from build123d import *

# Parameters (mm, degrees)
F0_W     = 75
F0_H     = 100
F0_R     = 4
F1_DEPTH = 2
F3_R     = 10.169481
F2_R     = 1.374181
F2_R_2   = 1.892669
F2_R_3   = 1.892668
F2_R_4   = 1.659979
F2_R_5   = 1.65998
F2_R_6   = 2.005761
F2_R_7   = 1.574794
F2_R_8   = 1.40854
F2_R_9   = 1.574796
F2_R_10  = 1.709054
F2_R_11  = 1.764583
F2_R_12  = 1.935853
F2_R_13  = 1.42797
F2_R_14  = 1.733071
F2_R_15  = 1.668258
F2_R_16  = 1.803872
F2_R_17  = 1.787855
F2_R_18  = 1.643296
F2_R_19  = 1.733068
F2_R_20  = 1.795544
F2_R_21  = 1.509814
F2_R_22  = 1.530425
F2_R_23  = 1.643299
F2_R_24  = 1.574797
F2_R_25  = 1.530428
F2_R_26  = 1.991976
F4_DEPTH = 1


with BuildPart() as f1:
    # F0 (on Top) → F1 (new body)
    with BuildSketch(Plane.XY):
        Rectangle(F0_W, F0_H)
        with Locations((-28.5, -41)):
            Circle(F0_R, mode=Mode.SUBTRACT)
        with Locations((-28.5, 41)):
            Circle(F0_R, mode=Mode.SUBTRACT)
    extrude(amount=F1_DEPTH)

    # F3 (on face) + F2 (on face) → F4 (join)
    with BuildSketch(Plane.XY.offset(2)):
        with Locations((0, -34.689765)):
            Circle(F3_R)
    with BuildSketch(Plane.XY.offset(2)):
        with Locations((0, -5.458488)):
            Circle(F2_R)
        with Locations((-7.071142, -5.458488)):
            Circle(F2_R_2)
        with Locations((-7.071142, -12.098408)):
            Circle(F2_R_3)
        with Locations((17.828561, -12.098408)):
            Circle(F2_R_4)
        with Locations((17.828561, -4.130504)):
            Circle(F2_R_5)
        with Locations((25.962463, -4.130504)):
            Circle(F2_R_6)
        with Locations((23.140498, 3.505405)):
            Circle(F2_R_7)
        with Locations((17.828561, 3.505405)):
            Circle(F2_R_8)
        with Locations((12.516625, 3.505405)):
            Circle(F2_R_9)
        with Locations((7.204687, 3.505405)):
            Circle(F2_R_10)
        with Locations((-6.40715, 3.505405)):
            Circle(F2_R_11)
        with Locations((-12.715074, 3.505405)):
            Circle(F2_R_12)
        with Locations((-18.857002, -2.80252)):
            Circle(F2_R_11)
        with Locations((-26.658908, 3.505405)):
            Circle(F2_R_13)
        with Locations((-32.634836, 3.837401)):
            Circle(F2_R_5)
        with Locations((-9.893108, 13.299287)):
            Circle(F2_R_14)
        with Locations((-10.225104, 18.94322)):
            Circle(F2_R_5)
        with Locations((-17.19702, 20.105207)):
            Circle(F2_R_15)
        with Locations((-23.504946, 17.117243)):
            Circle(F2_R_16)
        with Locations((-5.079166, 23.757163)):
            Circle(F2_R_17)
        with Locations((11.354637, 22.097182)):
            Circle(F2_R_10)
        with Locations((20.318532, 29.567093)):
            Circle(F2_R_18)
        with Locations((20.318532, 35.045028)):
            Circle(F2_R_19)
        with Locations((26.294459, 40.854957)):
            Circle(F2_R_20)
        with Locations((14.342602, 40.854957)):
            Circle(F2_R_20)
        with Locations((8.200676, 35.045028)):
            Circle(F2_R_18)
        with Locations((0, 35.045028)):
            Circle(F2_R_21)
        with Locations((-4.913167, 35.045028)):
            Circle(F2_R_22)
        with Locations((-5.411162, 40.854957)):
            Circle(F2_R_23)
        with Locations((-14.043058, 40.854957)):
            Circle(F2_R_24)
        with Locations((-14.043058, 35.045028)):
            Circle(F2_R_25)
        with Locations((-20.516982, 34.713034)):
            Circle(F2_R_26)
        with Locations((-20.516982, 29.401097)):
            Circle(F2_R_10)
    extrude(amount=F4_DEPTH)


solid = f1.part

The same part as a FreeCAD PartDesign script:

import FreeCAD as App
import Part
import Sketcher

V = App.Vector
Q = App.Units.Quantity


def add_polygon(sketch, points):
    """Adds a closed chain of lines whose ends are joined by coincident constraints."""
    first, n = sketch.GeometryCount, len(points)
    for a, b in zip(points, points[1:] + points[:1]):
        sketch.addGeometry(Part.LineSegment(App.Vector(*a, 0), App.Vector(*b, 0)), False)
    for i in range(n):
        sketch.addConstraint(Sketcher.Constraint("Coincident", first + i, 2, first + (i + 1) % n, 1))

doc = App.newDocument("Part")
body = doc.addObject("PartDesign::Body", "Body")

# Sketch on XY plane
sketch1 = body.newObject("Sketcher::SketchObject", "Sketch")
sketch1.AttachmentSupport = (doc.getObject("XY_Plane"), [""])
sketch1.MapMode = "FlatFace"
add_polygon(sketch1, [(-37.5, 50), (-37.5, -50), (37.5, -50), (37.5, 50)])  # lines 0-3
sketch1.addGeometry(Part.Circle(V(-28.5, -41, 0), V(0, 0, 1), 4), False)  # 4
sketch1.addGeometry(Part.Circle(V(-28.5, 41, 0), V(0, 0, 1), 4), False)  # 5
sketch1.addConstraint(Sketcher.Constraint("Vertical", 0))
sketch1.addConstraint(Sketcher.Constraint("Horizontal", 1))
sketch1.addConstraint(Sketcher.Constraint("Vertical", 2))
sketch1.addConstraint(Sketcher.Constraint("Horizontal", 3))
sketch1.addConstraint(Sketcher.Constraint("Equal", 4, 5))
sketch1.addConstraint(Sketcher.Constraint("Symmetric", 0, 2, 2, 2, -1, 1))
sketch1.addConstraint(Sketcher.Constraint("Symmetric", 4, 3, 5, 3, -1))
sketch1.addConstraint(Sketcher.Constraint("Diameter", 4, Q("8 mm")))
sketch1.addConstraint(Sketcher.Constraint("DistanceX", 1, 1, 1, 2, Q("75 mm")))
sketch1.addConstraint(Sketcher.Constraint("DistanceY", 0, 2, 0, 1, Q("100 mm")))
sketch1.addConstraint(Sketcher.Constraint("DistanceY", 4, 3, -1, 1, Q("41 mm")))
sketch1.addConstraint(Sketcher.Constraint("DistanceX", 0, 2, 4, 3, Q("9 mm")))
pad1 = body.newObject("PartDesign::Pad", "Pad")
pad1.Profile = sketch1
pad1.Length = 2

# Sketch on XY plane
sketch2 = body.newObject("Sketcher::SketchObject", "Sketch001")
sketch2.AttachmentSupport = (doc.getObject("XY_Plane"), [""])
sketch2.MapMode = "FlatFace"
sketch2.AttachmentOffset = App.Placement(V(0, 0, 2), App.Rotation())
sketch2.addGeometry(Part.Circle(V(0, -34.7, 0), V(0, 0, 1), 10.2), False)
sketch2.addGeometry(Part.Circle(V(0, -5.5, 0), V(0, 0, 1), 1.4), False)
sketch2.addGeometry(Part.Circle(V(-7.1, -5.5, 0), V(0, 0, 1), 1.9), False)
sketch2.addGeometry(Part.Circle(V(-7.1, -12.1, 0), V(0, 0, 1), 1.9), False)
sketch2.addGeometry(Part.Circle(V(17.8, -12.1, 0), V(0, 0, 1), 1.7), False)
sketch2.addGeometry(Part.Circle(V(17.8, -4.1, 0), V(0, 0, 1), 1.7), False)
sketch2.addGeometry(Part.Circle(V(26, -4.1, 0), V(0, 0, 1), 2), False)
sketch2.addGeometry(Part.Circle(V(23.1, 3.5, 0), V(0, 0, 1), 1.6), False)
sketch2.addGeometry(Part.Circle(V(17.8, 3.5, 0), V(0, 0, 1), 1.4), False)
sketch2.addGeometry(Part.Circle(V(12.5, 3.5, 0), V(0, 0, 1), 1.6), False)
sketch2.addGeometry(Part.Circle(V(7.2, 3.5, 0), V(0, 0, 1), 1.7), False)
sketch2.addGeometry(Part.Circle(V(-6.4, 3.5, 0), V(0, 0, 1), 1.8), False)
sketch2.addGeometry(Part.Circle(V(-12.7, 3.5, 0), V(0, 0, 1), 1.9), False)
sketch2.addGeometry(Part.Circle(V(-18.9, -2.8, 0), V(0, 0, 1), 1.8), False)
sketch2.addGeometry(Part.Circle(V(-26.7, 3.5, 0), V(0, 0, 1), 1.4), False)
sketch2.addGeometry(Part.Circle(V(-32.6, 3.8, 0), V(0, 0, 1), 1.7), False)
sketch2.addGeometry(Part.Circle(V(-9.9, 13.3, 0), V(0, 0, 1), 1.7), False)
sketch2.addGeometry(Part.Circle(V(-10.2, 18.9, 0), V(0, 0, 1), 1.7), False)
sketch2.addGeometry(Part.Circle(V(-17.2, 20.1, 0), V(0, 0, 1), 1.7), False)
sketch2.addGeometry(Part.Circle(V(-23.5, 17.1, 0), V(0, 0, 1), 1.8), False)
sketch2.addGeometry(Part.Circle(V(-5.1, 23.8, 0), V(0, 0, 1), 1.8), False)
sketch2.addGeometry(Part.Circle(V(11.4, 22.1, 0), V(0, 0, 1), 1.7), False)
sketch2.addGeometry(Part.Circle(V(20.3, 29.6, 0), V(0, 0, 1), 1.6), False)
sketch2.addGeometry(Part.Circle(V(20.3, 35, 0), V(0, 0, 1), 1.7), False)
sketch2.addGeometry(Part.Circle(V(26.3, 40.9, 0), V(0, 0, 1), 1.8), False)
sketch2.addGeometry(Part.Circle(V(14.3, 40.9, 0), V(0, 0, 1), 1.8), False)
sketch2.addGeometry(Part.Circle(V(8.2, 35, 0), V(0, 0, 1), 1.6), False)
sketch2.addGeometry(Part.Circle(V(0, 35, 0), V(0, 0, 1), 1.5), False)
sketch2.addGeometry(Part.Circle(V(-4.9, 35, 0), V(0, 0, 1), 1.5), False)
sketch2.addGeometry(Part.Circle(V(-5.4, 40.9, 0), V(0, 0, 1), 1.6), False)
sketch2.addGeometry(Part.Circle(V(-14, 40.9, 0), V(0, 0, 1), 1.6), False)
sketch2.addGeometry(Part.Circle(V(-14, 35, 0), V(0, 0, 1), 1.5), False)
sketch2.addGeometry(Part.Circle(V(-20.5, 34.7, 0), V(0, 0, 1), 2), False)
sketch2.addGeometry(Part.Circle(V(-20.5, 29.4, 0), V(0, 0, 1), 1.7), False)
sketch2.addConstraint(Sketcher.Constraint("Equal", 2, 3))
sketch2.addConstraint(Sketcher.Constraint("Equal", 4, 5))
sketch2.addConstraint(Sketcher.Constraint("Equal", 11, 13))
sketch2.addConstraint(Sketcher.Constraint("Equal", 5, 15))
sketch2.addConstraint(Sketcher.Constraint("Equal", 15, 17))
sketch2.addConstraint(Sketcher.Constraint("Equal", 10, 21))
sketch2.addConstraint(Sketcher.Constraint("Equal", 24, 25))
sketch2.addConstraint(Sketcher.Constraint("Equal", 22, 26))
sketch2.addConstraint(Sketcher.Constraint("Equal", 9, 30))
sketch2.addConstraint(Sketcher.Constraint("Equal", 21, 33))
sketch2.addConstraint(Sketcher.Constraint("PointOnObject", 0, 3, -2))
sketch2.addConstraint(Sketcher.Constraint("PointOnObject", 1, 3, -2))
sketch2.addConstraint(Sketcher.Constraint("PointOnObject", 27, 3, -2))
sketch2.addConstraint(Sketcher.Constraint("Horizontal", 1, 3, 2, 3))
sketch2.addConstraint(Sketcher.Constraint("Horizontal", 3, 3, 4, 3))
sketch2.addConstraint(Sketcher.Constraint("Horizontal", 5, 3, 6, 3))
sketch2.addConstraint(Sketcher.Constraint("Horizontal", 7, 3, 8, 3))
sketch2.addConstraint(Sketcher.Constraint("Horizontal", 8, 3, 9, 3))
sketch2.addConstraint(Sketcher.Constraint("Horizontal", 9, 3, 10, 3))
sketch2.addConstraint(Sketcher.Constraint("Horizontal", 10, 3, 11, 3))
sketch2.addConstraint(Sketcher.Constraint("Horizontal", 11, 3, 12, 3))
sketch2.addConstraint(Sketcher.Constraint("Horizontal", 12, 3, 14, 3))
sketch2.addConstraint(Sketcher.Constraint("Horizontal", 24, 3, 25, 3))
sketch2.addConstraint(Sketcher.Constraint("Horizontal", 23, 3, 26, 3))
sketch2.addConstraint(Sketcher.Constraint("Horizontal", 26, 3, 27, 3))
sketch2.addConstraint(Sketcher.Constraint("Horizontal", 27, 3, 28, 3))
sketch2.addConstraint(Sketcher.Constraint("Horizontal", 25, 3, 29, 3))
sketch2.addConstraint(Sketcher.Constraint("Horizontal", 29, 3, 30, 3))
sketch2.addConstraint(Sketcher.Constraint("Horizontal", 28, 3, 31, 3))
sketch2.addConstraint(Sketcher.Constraint("Vertical", 2, 3, 3, 3))
sketch2.addConstraint(Sketcher.Constraint("Vertical", 4, 3, 5, 3))
sketch2.addConstraint(Sketcher.Constraint("Vertical", 5, 3, 8, 3))
sketch2.addConstraint(Sketcher.Constraint("Vertical", 22, 3, 23, 3))
sketch2.addConstraint(Sketcher.Constraint("Vertical", 30, 3, 31, 3))
sketch2.addConstraint(Sketcher.Constraint("Vertical", 32, 3, 33, 3))
sketch2.addConstraint(Sketcher.Constraint("Diameter", 29, Q("3.286598 mm")))
sketch2.addConstraint(Sketcher.Constraint("Diameter", 0, Q("20.338962 mm")))
sketch2.addConstraint(Sketcher.Constraint("Diameter", 4, Q("3.319958 mm")))
sketch2.addConstraint(Sketcher.Constraint("Diameter", 7, Q("3.149588 mm")))
sketch2.addConstraint(Sketcher.Constraint("Diameter", 8, Q("2.81708 mm")))
sketch2.addConstraint(Sketcher.Constraint("Diameter", 10, Q("3.418108 mm")))
sketch2.addConstraint(Sketcher.Constraint("Diameter", 14, Q("2.85594 mm")))
sketch2.addConstraint(Sketcher.Constraint("Diameter", 16, Q("3.466142 mm")))
sketch2.addConstraint(Sketcher.Constraint("Diameter", 20, Q("3.57571 mm")))
sketch2.addConstraint(Sketcher.Constraint("Diameter", 24, Q("3.591088 mm")))
sketch2.addConstraint(Sketcher.Constraint("Diameter", 27, Q("3.019628 mm")))
sketch2.addConstraint(Sketcher.Constraint("Diameter", 28, Q("3.06085 mm")))
sketch2.addConstraint(Sketcher.Constraint("Diameter", 32, Q("3.983952 mm")))
sketch2.addConstraint(Sketcher.Constraint("Diameter", 1, Q("2.748362 mm")))
sketch2.addConstraint(Sketcher.Constraint("Diameter", 2, Q("3.785338 mm")))
sketch2.addConstraint(Sketcher.Constraint("Diameter", 6, Q("4.011522 mm")))
sketch2.addConstraint(Sketcher.Constraint("Diameter", 9, Q("3.149592 mm")))
sketch2.addConstraint(Sketcher.Constraint("Diameter", 11, Q("3.529166 mm")))
sketch2.addConstraint(Sketcher.Constraint("Diameter", 12, Q("3.871706 mm")))
sketch2.addConstraint(Sketcher.Constraint("Diameter", 18, Q("3.336516 mm")))
sketch2.addConstraint(Sketcher.Constraint("Diameter", 19, Q("3.607744 mm")))
sketch2.addConstraint(Sketcher.Constraint("Diameter", 22, Q("3.286592 mm")))
sketch2.addConstraint(Sketcher.Constraint("Diameter", 23, Q("3.466136 mm")))
sketch2.addConstraint(Sketcher.Constraint("Diameter", 31, Q("3.060856 mm")))
sketch2.addConstraint(Sketcher.Constraint("DistanceX", 20, 3, 28, 3, Q("0.165999 mm")))
sketch2.addConstraint(Sketcher.Constraint("DistanceX", -1, 1, 7, 3, Q("23.140498 mm")))
sketch2.addConstraint(Sketcher.Constraint("DistanceY", -1, 1, 15, 3, Q("3.837401 mm")))
sketch2.addConstraint(Sketcher.Constraint("DistanceX", 5, 3, 6, 3, Q("8.133902 mm")))
sketch2.addConstraint(Sketcher.Constraint("DistanceX", 14, 3, 16, 3, Q("16.7658 mm")))
sketch2.addConstraint(Sketcher.Constraint("DistanceX", 20, 3, 22, 3, Q("25.397698 mm")))
sketch2.addConstraint(Sketcher.Constraint("DistanceX", -1, 1, 4, 3, Q("17.828561 mm")))
sketch2.addConstraint(Sketcher.Constraint("DistanceX", 11, 3, -1, 1, Q("6.40715 mm")))
sketch2.addConstraint(Sketcher.Constraint("DistanceY", 13, 3, -1, 1, Q("2.80252 mm")))
sketch2.addConstraint(Sketcher.Constraint("DistanceX", 14, 3, -1, 1, Q("26.658908 mm")))
sketch2.addConstraint(Sketcher.Constraint("DistanceY", -1, 1, 17, 3, Q("18.94322 mm")))
sketch2.addConstraint(Sketcher.Constraint("DistanceX", 18, 3, -1, 1, Q("17.19702 mm")))
sketch2.addConstraint(Sketcher.Constraint("DistanceY", -1, 1, 21, 3, Q("22.097182 mm")))
sketch2.addConstraint(Sketcher.Constraint("DistanceY", -1, 1, 23, 3, Q("35.045028 mm")))
sketch2.addConstraint(Sketcher.Constraint("DistanceX", -1, 1, 24, 3, Q("26.294459 mm")))
sketch2.addConstraint(Sketcher.Constraint("DistanceX", 32, 3, -1, 1, Q("20.516982 mm")))
sketch2.addConstraint(Sketcher.Constraint("DistanceY", 3, 3, 2, 3, Q("6.63992 mm")))
sketch2.addConstraint(Sketcher.Constraint("DistanceY", 0, 3, 5, 3, Q("30.559261 mm")))
sketch2.addConstraint(Sketcher.Constraint("DistanceY", 6, 3, 7, 3, Q("7.635909 mm")))
sketch2.addConstraint(Sketcher.Constraint("DistanceX", 2, 3, 7, 3, Q("30.21164 mm")))
sketch2.addConstraint(Sketcher.Constraint("DistanceX", 10, 3, 7, 3, Q("15.935811 mm")))
sketch2.addConstraint(Sketcher.Constraint("DistanceX", 12, 3, 2, 3, Q("5.643932 mm")))
sketch2.addConstraint(Sketcher.Constraint("DistanceX", 13, 3, 12, 3, Q("6.141928 mm")))
sketch2.addConstraint(Sketcher.Constraint("DistanceY", 2, 3, 13, 3, Q("2.655968 mm")))
sketch2.addConstraint(Sketcher.Constraint("DistanceX", 15, 3, 12, 3, Q("19.919762 mm")))
sketch2.addConstraint(Sketcher.Constraint("DistanceX", 12, 3, 17, 3, Q("2.48997 mm")))
sketch2.addConstraint(Sketcher.Constraint("DistanceY", 16, 3, 18, 3, Q("6.80592 mm")))
sketch2.addConstraint(Sketcher.Constraint("DistanceX", 14, 3, 19, 3, Q("3.153962 mm")))
sketch2.addConstraint(Sketcher.Constraint("DistanceY", 15, 3, 19, 3, Q("13.279842 mm")))
sketch2.addConstraint(Sketcher.Constraint("DistanceX", 19, 3, 20, 3, Q("18.42578 mm")))
sketch2.addConstraint(Sketcher.Constraint("DistanceY", 19, 3, 20, 3, Q("6.63992 mm")))
sketch2.addConstraint(Sketcher.Constraint("DistanceX", 10, 3, 21, 3, Q("4.14995 mm")))
sketch2.addConstraint(Sketcher.Constraint("DistanceY", 21, 3, 22, 3, Q("7.469911 mm")))
sketch2.addConstraint(Sketcher.Constraint("DistanceY", 8, 3, 22, 3, Q("26.061688 mm")))
sketch2.addConstraint(Sketcher.Constraint("DistanceY", 23, 3, 24, 3, Q("5.809929 mm")))
sketch2.addConstraint(Sketcher.Constraint("DistanceX", 25, 3, 23, 3, Q("5.97593 mm")))
sketch2.addConstraint(Sketcher.Constraint("DistanceX", 26, 3, 21, 3, Q("3.153961 mm")))
sketch2.addConstraint(Sketcher.Constraint("DistanceY", 18, 3, 28, 3, Q("14.939821 mm")))
sketch2.addConstraint(Sketcher.Constraint("DistanceX", 30, 3, 28, 3, Q("9.129891 mm")))
sketch2.addConstraint(Sketcher.Constraint("DistanceX", 32, 3, 29, 3, Q("15.10582 mm")))
sketch2.addConstraint(Sketcher.Constraint("DistanceY", 33, 3, 31, 3, Q("5.643931 mm")))
sketch2.addConstraint(Sketcher.Constraint("DistanceX", -1, 1, 9, 3, Q("12.516625 mm")))
sketch2.addConstraint(Sketcher.Constraint("DistanceY", -1, 1, 32, 3, Q("34.713034 mm")))
pad2 = body.newObject("PartDesign::Pad", "Pad001")
pad2.Profile = sketch2
pad2.Length = 1

doc.recompute()
